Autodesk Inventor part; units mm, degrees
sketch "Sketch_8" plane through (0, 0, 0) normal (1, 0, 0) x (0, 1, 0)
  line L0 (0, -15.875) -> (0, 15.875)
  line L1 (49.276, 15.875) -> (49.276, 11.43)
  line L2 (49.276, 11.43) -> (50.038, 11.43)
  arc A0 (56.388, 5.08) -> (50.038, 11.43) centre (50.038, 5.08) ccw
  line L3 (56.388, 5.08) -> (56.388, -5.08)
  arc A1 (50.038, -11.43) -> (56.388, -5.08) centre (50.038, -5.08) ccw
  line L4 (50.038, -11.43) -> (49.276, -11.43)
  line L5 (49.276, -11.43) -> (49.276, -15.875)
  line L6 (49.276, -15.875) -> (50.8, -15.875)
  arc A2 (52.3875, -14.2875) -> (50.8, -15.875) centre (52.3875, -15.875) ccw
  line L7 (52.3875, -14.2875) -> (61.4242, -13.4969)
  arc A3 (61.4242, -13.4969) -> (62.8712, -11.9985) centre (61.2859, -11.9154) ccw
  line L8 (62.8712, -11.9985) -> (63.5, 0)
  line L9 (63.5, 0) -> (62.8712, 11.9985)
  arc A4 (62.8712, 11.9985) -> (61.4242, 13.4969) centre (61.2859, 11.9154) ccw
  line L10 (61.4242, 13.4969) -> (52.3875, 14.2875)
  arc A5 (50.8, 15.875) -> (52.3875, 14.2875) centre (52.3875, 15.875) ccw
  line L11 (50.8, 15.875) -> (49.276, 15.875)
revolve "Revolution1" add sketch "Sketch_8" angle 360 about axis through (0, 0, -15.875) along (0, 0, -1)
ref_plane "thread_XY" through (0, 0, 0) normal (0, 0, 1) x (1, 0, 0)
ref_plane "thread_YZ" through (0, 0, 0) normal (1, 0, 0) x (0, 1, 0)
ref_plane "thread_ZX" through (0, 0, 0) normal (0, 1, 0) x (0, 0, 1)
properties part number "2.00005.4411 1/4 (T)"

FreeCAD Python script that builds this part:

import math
import FreeCAD as App
import Part
import Sketcher
from FreeCAD import Vector
Q = App.Units.Quantity

doc = App.newDocument("Part")
body = doc.addObject("PartDesign::Body", "Body")

# Sketch on YZ plane
sketch1 = doc.addObject("Sketcher::SketchObject", "Sketch")
body.addObject(sketch1)
sketch1.AttachmentSupport = (doc.YZ_Plane, [""])
sketch1.MapMode = "FlatFace"
sketch1.addGeometry([
    Part.LineSegment(Vector(50.8, 15.9, 0), Vector(49.3, 15.9, 0)),  # 0
    Part.LineSegment(Vector(49.3, 15.9, 0), Vector(49.3, 11.4, 0)),  # 1
    Part.LineSegment(Vector(49.3, 11.4, 0), Vector(50, 11.4, 0)),  # 2
    Part.ArcOfCircle(Part.Circle(Vector(50, 5.1, 0), Vector(0, 0, 1), 6.4), math.radians(0), math.radians(90)),  # 3
    Part.LineSegment(Vector(56.4, 5.1, 0), Vector(56.4, -5.1, 0)),  # 4
    Part.ArcOfCircle(Part.Circle(Vector(50, -5.1, 0), Vector(0, 0, 1), 6.3), math.radians(-90), math.radians(0)),  # 5
    Part.LineSegment(Vector(50, -11.4, 0), Vector(49.3, -11.4, 0)),  # 6
    Part.LineSegment(Vector(49.3, -11.4, 0), Vector(49.3, -15.9, 0)),  # 7
    Part.LineSegment(Vector(49.3, -15.9, 0), Vector(50.8, -15.9, 0)),  # 8
    Part.ArcOfCircle(Part.Circle(Vector(52.4, -15.9, 0), Vector(0, 0, 1), 1.6), math.radians(90), math.radians(180)),  # 9
    Part.LineSegment(Vector(52.4, -14.3, 0), Vector(61.4, -13.5, 0)),  # 10
    Part.ArcOfCircle(Part.Circle(Vector(61.3, -11.9, 0), Vector(0, 0, 1), 1.6), math.radians(-85), math.radians(-3)),  # 11
    Part.LineSegment(Vector(62.9, -12, 0), Vector(63.5, 0, 0)),  # 12
    Part.LineSegment(Vector(63.5, 0, 0), Vector(62.9, 12, 0)),  # 13
    Part.ArcOfCircle(Part.Circle(Vector(61.3, 11.9, 0), Vector(0, 0, 1), 1.6), math.radians(3), math.radians(85)),  # 14
    Part.LineSegment(Vector(61.4, 13.5, 0), Vector(52.4, 14.3, 0)),  # 15
    Part.ArcOfCircle(Part.Circle(Vector(52.4, 15.9, 0), Vector(0, 0, 1), 1.6), math.radians(180), math.radians(270)),  # 16
], False)
sketch1.addConstraint([
    Sketcher.Constraint("Coincident", 0, 2, 1, 1),
    Sketcher.Constraint("Coincident", 1, 2, 2, 1),
    Sketcher.Constraint("Tangent", 2, 2, 3, 2),
    Sketcher.Constraint("Tangent", 3, 1, 4, 1),
    Sketcher.Constraint("Tangent", 4, 2, 5, 2),
    Sketcher.Constraint("Tangent", 5, 1, 6, 1),
    Sketcher.Constraint("Coincident", 6, 2, 7, 1),
    Sketcher.Constraint("Coincident", 7, 2, 8, 1),
    Sketcher.Constraint("Coincident", 8, 2, 9, 2),
    Sketcher.Constraint("Coincident", 9, 1, 10, 1),
    Sketcher.Constraint("Tangent", 10, 2, 11, 1),
    Sketcher.Constraint("Tangent", 11, 2, 12, 1),
    Sketcher.Constraint("Coincident", 12, 2, 13, 1),
    Sketcher.Constraint("Tangent", 13, 2, 14, 1),
    Sketcher.Constraint("Tangent", 14, 2, 15, 1),
    Sketcher.Constraint("Coincident", 15, 2, 16, 2),
    Sketcher.Constraint("Coincident", 16, 1, 0, 1),
    Sketcher.Constraint("Horizontal", 0),
    Sketcher.Constraint("Vertical", 1),
    Sketcher.Constraint("Horizontal", 2),
    Sketcher.Constraint("Vertical", 4),
    Sketcher.Constraint("Horizontal", 6),
    Sketcher.Constraint("Vertical", 7),
    Sketcher.Constraint("Horizontal", 8),
    Sketcher.Constraint("Equal", 3, 5),
    Sketcher.Constraint("Equal", 9, 11),
    Sketcher.Constraint("Equal", 11, 14),
    Sketcher.Constraint("Equal", 14, 16),
    Sketcher.Constraint("Symmetric", 11, 3, 14, 3, -1),
    Sketcher.Constraint("Symmetric", 9, 3, 16, 3, -1),
    Sketcher.Constraint("Symmetric", 1, 2, 6, 2, -1),
    Sketcher.Constraint("PointOnObject", 12, 2, -1),
    Sketcher.Constraint("Horizontal", 16, 3, 0, 2),
    Sketcher.Constraint("Horizontal", 9, 3, 7, 2),
    Sketcher.Constraint("Vertical", 16, 3, 9, 1),
    Sketcher.Constraint("Vertical", 10, 2, 14, 2),
    Sketcher.Constraint("Radius", 3, Q("0.25 in")),
    Sketcher.Constraint("DistanceY", 4, 2, 4, 1, Q("0.4 in")),
    Sketcher.Constraint("DistanceX", -1, 1, 8, 2, Q("2 in")),
    Sketcher.Constraint("Angle", 10, Q("5 deg")),
    Sketcher.Constraint("Angle", 12, Q("87 deg")),
    Sketcher.Constraint("Radius", 9, Q("0.0625 in")),
    Sketcher.Constraint("DistanceX", 0, 2, 0, 1, Q("0.06 in")),
    Sketcher.Constraint("DistanceX", 2, 1, 2, 2, Q("0.03 in")),
    Sketcher.Constraint("DistanceX", -1, 1, 12, 2, Q("2.5 in")),
    Sketcher.Constraint("DistanceY", 1, 2, 1, 1, Q("0.175 in")),
])
revolution = doc.addObject("PartDesign::Revolution", "Revolution")
body.addObject(revolution)
revolution.Profile = sketch1
revolution.ReferenceAxis = (sketch1, ["V_Axis"])
revolution.Angle = 360

doc.recompute()
